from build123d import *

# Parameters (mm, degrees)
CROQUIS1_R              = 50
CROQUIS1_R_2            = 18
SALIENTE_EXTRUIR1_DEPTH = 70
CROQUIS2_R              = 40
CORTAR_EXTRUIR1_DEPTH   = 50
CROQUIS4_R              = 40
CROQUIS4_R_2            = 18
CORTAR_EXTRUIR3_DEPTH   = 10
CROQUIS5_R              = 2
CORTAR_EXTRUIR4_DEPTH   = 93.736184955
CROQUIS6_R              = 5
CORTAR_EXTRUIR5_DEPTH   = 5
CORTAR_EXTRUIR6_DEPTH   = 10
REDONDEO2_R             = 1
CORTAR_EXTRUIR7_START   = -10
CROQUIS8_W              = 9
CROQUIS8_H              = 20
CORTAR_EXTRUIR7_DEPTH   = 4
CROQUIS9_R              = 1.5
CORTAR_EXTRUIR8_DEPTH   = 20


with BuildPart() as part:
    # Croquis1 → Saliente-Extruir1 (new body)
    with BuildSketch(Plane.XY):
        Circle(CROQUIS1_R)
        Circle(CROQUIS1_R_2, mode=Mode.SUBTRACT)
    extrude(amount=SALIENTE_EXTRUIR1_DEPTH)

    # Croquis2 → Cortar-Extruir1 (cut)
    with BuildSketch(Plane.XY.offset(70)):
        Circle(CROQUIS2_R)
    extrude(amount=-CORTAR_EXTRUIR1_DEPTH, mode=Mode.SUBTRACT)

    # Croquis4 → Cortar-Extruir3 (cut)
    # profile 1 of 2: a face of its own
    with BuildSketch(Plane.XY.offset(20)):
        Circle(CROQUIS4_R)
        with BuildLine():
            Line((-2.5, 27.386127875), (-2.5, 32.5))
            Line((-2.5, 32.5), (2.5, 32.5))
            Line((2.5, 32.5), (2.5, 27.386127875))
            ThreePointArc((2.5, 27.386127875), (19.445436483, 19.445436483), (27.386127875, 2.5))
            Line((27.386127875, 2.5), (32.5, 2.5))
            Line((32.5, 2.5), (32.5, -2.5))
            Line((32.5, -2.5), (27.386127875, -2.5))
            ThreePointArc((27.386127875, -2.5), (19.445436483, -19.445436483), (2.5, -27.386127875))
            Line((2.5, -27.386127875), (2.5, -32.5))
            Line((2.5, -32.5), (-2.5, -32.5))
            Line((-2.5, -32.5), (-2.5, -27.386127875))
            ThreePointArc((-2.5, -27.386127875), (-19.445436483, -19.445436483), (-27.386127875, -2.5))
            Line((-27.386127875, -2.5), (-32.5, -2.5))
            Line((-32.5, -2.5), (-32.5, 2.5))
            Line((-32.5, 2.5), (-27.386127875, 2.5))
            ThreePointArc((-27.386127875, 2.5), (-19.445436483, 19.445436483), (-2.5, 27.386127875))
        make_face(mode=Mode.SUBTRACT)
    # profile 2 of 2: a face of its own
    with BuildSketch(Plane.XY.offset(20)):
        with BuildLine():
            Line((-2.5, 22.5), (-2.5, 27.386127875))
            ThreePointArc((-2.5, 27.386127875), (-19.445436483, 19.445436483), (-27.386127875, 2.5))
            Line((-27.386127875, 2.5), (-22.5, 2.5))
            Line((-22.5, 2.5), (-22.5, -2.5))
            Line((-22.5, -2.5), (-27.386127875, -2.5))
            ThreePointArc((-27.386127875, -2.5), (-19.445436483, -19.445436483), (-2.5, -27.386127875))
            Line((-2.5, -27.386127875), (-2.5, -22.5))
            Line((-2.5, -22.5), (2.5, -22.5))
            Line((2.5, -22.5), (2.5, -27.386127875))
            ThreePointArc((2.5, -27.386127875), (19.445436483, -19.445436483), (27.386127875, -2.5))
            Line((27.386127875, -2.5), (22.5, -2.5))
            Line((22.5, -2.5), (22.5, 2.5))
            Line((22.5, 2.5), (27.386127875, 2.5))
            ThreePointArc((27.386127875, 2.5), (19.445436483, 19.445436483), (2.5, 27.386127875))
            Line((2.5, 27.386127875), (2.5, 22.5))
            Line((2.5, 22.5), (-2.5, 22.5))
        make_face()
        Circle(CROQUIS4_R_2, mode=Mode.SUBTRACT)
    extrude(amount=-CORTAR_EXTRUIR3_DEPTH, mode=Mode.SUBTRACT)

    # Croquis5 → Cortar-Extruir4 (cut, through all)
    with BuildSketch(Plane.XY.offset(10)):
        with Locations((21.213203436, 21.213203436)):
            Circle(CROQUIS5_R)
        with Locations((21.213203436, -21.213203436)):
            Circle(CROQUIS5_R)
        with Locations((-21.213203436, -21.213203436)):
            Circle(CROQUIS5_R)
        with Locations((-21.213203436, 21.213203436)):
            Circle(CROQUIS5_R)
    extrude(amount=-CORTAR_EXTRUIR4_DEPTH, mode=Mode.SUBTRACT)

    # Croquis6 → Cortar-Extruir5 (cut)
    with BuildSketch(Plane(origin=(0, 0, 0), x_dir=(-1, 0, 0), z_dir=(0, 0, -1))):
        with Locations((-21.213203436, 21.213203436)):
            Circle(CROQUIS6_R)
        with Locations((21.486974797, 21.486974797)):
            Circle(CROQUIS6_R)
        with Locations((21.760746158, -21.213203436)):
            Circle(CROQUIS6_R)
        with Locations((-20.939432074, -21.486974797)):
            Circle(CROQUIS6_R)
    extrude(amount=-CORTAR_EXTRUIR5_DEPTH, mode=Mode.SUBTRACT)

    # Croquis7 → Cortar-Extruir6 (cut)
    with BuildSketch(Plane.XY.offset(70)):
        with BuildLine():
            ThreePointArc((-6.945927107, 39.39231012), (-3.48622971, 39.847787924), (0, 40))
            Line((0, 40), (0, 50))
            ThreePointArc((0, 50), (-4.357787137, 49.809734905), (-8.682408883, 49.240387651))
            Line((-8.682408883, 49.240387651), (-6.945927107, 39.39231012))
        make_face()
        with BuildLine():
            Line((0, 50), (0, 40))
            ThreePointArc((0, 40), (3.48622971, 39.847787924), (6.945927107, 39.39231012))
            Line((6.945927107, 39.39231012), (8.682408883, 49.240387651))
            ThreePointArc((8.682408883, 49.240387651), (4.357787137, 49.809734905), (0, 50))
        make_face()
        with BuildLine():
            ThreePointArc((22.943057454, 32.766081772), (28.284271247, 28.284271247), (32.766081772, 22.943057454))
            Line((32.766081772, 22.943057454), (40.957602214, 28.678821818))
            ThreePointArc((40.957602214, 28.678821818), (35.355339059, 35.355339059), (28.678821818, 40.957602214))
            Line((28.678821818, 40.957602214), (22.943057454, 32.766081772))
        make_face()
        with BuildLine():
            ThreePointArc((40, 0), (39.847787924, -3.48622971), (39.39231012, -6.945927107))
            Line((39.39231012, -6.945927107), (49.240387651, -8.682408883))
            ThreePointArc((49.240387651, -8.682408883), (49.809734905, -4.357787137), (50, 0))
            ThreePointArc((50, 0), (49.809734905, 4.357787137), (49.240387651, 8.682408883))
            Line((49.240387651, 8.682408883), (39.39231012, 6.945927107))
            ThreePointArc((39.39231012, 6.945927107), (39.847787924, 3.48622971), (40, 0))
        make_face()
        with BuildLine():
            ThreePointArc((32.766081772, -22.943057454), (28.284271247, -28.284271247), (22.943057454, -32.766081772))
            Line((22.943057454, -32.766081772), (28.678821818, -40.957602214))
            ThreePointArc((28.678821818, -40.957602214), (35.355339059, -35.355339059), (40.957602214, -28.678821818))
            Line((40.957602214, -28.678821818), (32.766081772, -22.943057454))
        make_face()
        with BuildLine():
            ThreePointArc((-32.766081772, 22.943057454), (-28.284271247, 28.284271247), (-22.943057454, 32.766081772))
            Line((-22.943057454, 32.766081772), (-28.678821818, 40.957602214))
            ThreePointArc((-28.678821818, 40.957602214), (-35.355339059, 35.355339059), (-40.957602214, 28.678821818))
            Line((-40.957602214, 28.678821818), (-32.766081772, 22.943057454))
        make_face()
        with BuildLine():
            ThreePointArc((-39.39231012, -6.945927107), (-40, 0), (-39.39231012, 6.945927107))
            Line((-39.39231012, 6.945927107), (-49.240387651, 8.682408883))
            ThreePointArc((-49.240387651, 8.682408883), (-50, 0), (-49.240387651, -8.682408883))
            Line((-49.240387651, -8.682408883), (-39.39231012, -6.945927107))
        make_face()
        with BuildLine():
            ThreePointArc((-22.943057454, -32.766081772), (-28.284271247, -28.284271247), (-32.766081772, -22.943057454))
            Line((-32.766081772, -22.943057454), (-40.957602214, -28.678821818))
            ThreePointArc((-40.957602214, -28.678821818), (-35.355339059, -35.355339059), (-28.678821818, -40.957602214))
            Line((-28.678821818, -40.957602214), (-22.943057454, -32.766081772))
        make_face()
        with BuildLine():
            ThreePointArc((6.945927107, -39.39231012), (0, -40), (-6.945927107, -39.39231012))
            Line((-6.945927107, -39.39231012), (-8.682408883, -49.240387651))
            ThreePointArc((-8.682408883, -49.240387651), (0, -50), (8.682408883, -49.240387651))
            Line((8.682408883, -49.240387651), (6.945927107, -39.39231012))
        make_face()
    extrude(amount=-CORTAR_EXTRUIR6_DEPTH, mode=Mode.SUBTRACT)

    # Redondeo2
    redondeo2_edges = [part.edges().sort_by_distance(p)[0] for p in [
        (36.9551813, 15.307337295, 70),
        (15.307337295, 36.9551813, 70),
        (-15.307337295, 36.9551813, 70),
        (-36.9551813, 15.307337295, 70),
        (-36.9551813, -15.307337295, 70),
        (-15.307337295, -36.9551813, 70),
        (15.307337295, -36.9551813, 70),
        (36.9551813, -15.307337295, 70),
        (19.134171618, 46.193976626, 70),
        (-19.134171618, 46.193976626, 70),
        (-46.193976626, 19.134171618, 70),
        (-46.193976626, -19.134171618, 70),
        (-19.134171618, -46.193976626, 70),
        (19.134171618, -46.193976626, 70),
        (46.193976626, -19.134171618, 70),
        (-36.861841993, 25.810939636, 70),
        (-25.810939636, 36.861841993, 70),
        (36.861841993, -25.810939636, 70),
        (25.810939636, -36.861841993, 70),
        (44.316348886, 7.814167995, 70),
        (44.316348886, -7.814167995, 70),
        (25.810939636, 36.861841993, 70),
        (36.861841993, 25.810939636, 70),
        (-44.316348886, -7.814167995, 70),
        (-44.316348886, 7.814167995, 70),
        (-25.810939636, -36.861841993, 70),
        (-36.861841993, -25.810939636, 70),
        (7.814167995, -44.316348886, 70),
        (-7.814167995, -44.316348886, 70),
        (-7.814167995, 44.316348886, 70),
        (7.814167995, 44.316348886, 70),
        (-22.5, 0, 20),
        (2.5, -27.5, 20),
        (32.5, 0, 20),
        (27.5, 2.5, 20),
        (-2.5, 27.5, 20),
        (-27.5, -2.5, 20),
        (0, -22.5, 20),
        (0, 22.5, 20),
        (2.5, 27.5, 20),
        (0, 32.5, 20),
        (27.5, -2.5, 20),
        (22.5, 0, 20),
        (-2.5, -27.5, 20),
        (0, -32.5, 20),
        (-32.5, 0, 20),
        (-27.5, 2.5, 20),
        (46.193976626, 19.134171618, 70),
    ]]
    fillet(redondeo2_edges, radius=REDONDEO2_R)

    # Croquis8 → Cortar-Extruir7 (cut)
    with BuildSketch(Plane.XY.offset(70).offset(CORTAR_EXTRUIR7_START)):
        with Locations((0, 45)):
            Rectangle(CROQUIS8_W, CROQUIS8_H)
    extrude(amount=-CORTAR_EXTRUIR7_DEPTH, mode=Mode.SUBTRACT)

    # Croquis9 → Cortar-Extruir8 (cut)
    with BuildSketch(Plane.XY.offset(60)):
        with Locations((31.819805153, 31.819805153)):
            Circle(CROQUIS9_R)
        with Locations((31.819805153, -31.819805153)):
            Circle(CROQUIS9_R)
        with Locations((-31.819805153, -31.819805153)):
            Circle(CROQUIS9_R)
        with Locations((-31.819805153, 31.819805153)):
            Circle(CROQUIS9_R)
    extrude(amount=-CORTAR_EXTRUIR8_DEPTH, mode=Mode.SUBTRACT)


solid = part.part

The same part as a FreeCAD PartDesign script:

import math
import FreeCAD as App
import Part
import Sketcher
from FreeCAD import Vector
Q = App.Units.Quantity


def edges_at(feature, points):
    """Names of the edges that pass closest to the given points."""
    edges = feature.Shape.Edges
    near = lambda p: min(range(len(edges)), key=lambda i: edges[i].distToShape(Part.Vertex(*p))[0])
    return sorted({f"Edge{near(p) + 1}" for p in points})


def add_polygon(sketch, points):
    """Adds a closed chain of lines whose ends are joined by coincident constraints."""
    first, n = sketch.GeometryCount, len(points)
    for a, b in zip(points, points[1:] + points[:1]):
        sketch.addGeometry(Part.LineSegment(App.Vector(*a, 0), App.Vector(*b, 0)), False)
    for i in range(n):
        sketch.addConstraint(Sketcher.Constraint("Coincident", first + i, 2, first + (i + 1) % n, 1))

doc = App.newDocument("Part")
body = doc.addObject("PartDesign::Body", "Body")

# Sketch on XY plane
sketch1 = doc.addObject("Sketcher::SketchObject", "Sketch")
body.addObject(sketch1)
sketch1.AttachmentSupport = (doc.XY_Plane, [""])
sketch1.MapMode = "FlatFace"
sketch1.addGeometry([
    Part.Circle(Vector(0, 0, 0), Vector(0, 0, 1), 50),
    Part.Circle(Vector(0, 0, 0), Vector(0, 0, 1), 18),
], False)
sketch1.addConstraint([
    Sketcher.Constraint("Coincident", 0, 3, -1, 1),
    Sketcher.Constraint("Coincident", 1, 3, -1, 1),
    Sketcher.Constraint("Diameter", 0, Q("100 mm")),
    Sketcher.Constraint("Diameter", 1, Q("36 mm")),
])
pad1 = doc.addObject("PartDesign::Pad", "Pad")
body.addObject(pad1)
pad1.Profile = sketch1
pad1.Length = 70

# Sketch on XY plane
sketch2 = doc.addObject("Sketcher::SketchObject", "Sketch001")
body.addObject(sketch2)
sketch2.AttachmentSupport = (doc.XY_Plane, [""])
sketch2.MapMode = "FlatFace"
sketch2.AttachmentOffset = App.Placement(Vector(0, 0, 70), App.Rotation())
sketch2.addGeometry(Part.Circle(Vector(0, 0, 0), Vector(0, 0, 1), 40), False)
sketch2.addConstraint([
    Sketcher.Constraint("Coincident", 0, 3, -1, 1),
    Sketcher.Constraint("Diameter", 0, Q("80 mm")),
])
pocket1 = doc.addObject("PartDesign::Pocket", "Pocket")
body.addObject(pocket1)
pocket1.Profile = sketch2
pocket1.Length = 50

# Sketch on XY plane
sketch3 = doc.addObject("Sketcher::SketchObject", "Sketch002")
body.addObject(sketch3)
sketch3.AttachmentSupport = (doc.XY_Plane, [""])
sketch3.MapMode = "FlatFace"
sketch3.AttachmentOffset = App.Placement(Vector(0, 0, 20), App.Rotation())
sketch3.addGeometry(Part.Circle(Vector(0, 0, 0), Vector(0, 0, 1), 40), False)  # 0
add_polygon(sketch3, [(-32.5, 2.5), (-22.5, 2.5), (-22.5, -2.5), (-32.5, -2.5)])  # lines 1-4
add_polygon(sketch3, [(-2.5, -32.5), (-2.5, -22.5), (2.5, -22.5), (2.5, -32.5)])  # lines 5-8
add_polygon(sketch3, [(32.5, -2.5), (22.5, -2.5), (22.5, 2.5), (32.5, 2.5)])  # lines 9-12
add_polygon(sketch3, [(2.5, 32.5), (2.5, 22.5), (-2.5, 22.5), (-2.5, 32.5)])  # lines 13-16
sketch3.addGeometry(Part.Circle(Vector(0, 0, 0), Vector(0, 0, 1), 18), False)  # 17
sketch3.addConstraint([
    Sketcher.Constraint("Horizontal", 1),
    Sketcher.Constraint("Vertical", 2),
    Sketcher.Constraint("Horizontal", 3),
    Sketcher.Constraint("Vertical", 4),
    Sketcher.Constraint("Vertical", 5),
    Sketcher.Constraint("Horizontal", 6),
    Sketcher.Constraint("Vertical", 7),
    Sketcher.Constraint("Horizontal", 8),
    Sketcher.Constraint("Horizontal", 9),
    Sketcher.Constraint("Vertical", 10),
    Sketcher.Constraint("Horizontal", 11),
    Sketcher.Constraint("Vertical", 12),
    Sketcher.Constraint("Vertical", 13),
    Sketcher.Constraint("Horizontal", 14),
    Sketcher.Constraint("Vertical", 15),
    Sketcher.Constraint("Horizontal", 16),
    Sketcher.Constraint("Coincident", 0, 3, -1, 1),
    Sketcher.Constraint("Coincident", 17, 3, -1, 1),
    Sketcher.Constraint("Symmetric", 1, 2, 9, 2, -1, 1),
    Sketcher.Constraint("Symmetric", 3, 2, 11, 2, -1, 1),
    Sketcher.Constraint("Symmetric", 5, 2, 13, 2, -1, 1),
    Sketcher.Constraint("Symmetric", 7, 2, 15, 2, -1, 1),
    Sketcher.Constraint("Horizontal", 3, 2, 9, 2),
    Sketcher.Constraint("Vertical", 7, 2, 13, 2),
    Sketcher.Constraint("Equal", 16, 2),
    Sketcher.Constraint("Equal", 11, 5),
    Sketcher.Constraint("Diameter", 0, Q("80 mm")),
    Sketcher.Constraint("Diameter", 17, Q("36 mm")),
    Sketcher.Constraint("DistanceX", 1, 1, 1, 2, Q("10 mm")),
    Sketcher.Constraint("DistanceX", 6, 1, 6, 2, Q("5 mm")),
    Sketcher.Constraint("DistanceX", 2, 2, 5, 2, Q("20 mm")),
    Sketcher.Constraint("DistanceY", 5, 2, 2, 2, Q("20 mm")),
])
pocket2 = doc.addObject("PartDesign::Pocket", "Pocket001")
body.addObject(pocket2)
pocket2.Profile = sketch3
pocket2.Length = 10

# Sketch on XY plane
sketch4 = doc.addObject("Sketcher::SketchObject", "Sketch003")
body.addObject(sketch4)
sketch4.AttachmentSupport = (doc.XY_Plane, [""])
sketch4.MapMode = "FlatFace"
sketch4.AttachmentOffset = App.Placement(Vector(0, 0, 10), App.Rotation())
sketch4.addGeometry([
    Part.Circle(Vector(21.213203, 21.213203, 0), Vector(0, 0, 1), 2),
    Part.Circle(Vector(21.213203, -21.213203, 0), Vector(0, 0, 1), 2),
    Part.Circle(Vector(-21.213203, -21.213203, 0), Vector(0, 0, 1), 2),
    Part.Circle(Vector(-21.213203, 21.213203, 0), Vector(0, 0, 1), 2),
], False)
sketch4.addConstraint([
    Sketcher.Constraint("Equal", 0, 1),
    Sketcher.Constraint("Equal", 1, 2),
    Sketcher.Constraint("Equal", 2, 3),
    Sketcher.Constraint("Symmetric", 0, 3, 2, 3, -1, 1),
    Sketcher.Constraint("Symmetric", 1, 3, 3, 3, -1, 1),
    Sketcher.Constraint("Symmetric", 1, 3, 2, 3, -2),
    Sketcher.Constraint("Diameter", 0, Q("4 mm")),
    Sketcher.Constraint("DistanceX", -1, 1, 0, 3, Q("21.213203 mm")),
    Sketcher.Constraint("DistanceY", -1, 1, 0, 3, Q("21.213203 mm")),
])
pocket3 = doc.addObject("PartDesign::Pocket", "Pocket002")
body.addObject(pocket3)
pocket3.Profile = sketch4
pocket3.Type = "ThroughAll"

# Sketch on XY plane
sketch5 = doc.addObject("Sketcher::SketchObject", "Sketch004")
body.addObject(sketch5)
sketch5.AttachmentSupport = (doc.XY_Plane, [""])
sketch5.MapMode = "FlatFace"
sketch5.addGeometry([
    Part.Circle(Vector(21.213203, 21.213203, 0), Vector(0, 0, 1), 5),
    Part.Circle(Vector(-21.486975, 21.486975, 0), Vector(0, 0, 1), 5),
    Part.Circle(Vector(-21.760746, -21.213203, 0), Vector(0, 0, 1), 5),
    Part.Circle(Vector(20.939432, -21.486975, 0), Vector(0, 0, 1), 5),
], False)
sketch5.addConstraint([
    Sketcher.Constraint("Equal", 0, 1),
    Sketcher.Constraint("Equal", 1, 2),
    Sketcher.Constraint("Equal", 2, 3),
    Sketcher.Constraint("Diameter", 0, Q("10 mm")),
    Sketcher.Constraint("DistanceX", 1, 3, 0, 3, Q("42.700178 mm")),
    Sketcher.Constraint("DistanceY", 0, 3, 1, 3, Q("0.273771 mm")),
    Sketcher.Constraint("DistanceX", 2, 3, 1, 3, Q("0.273771 mm")),
    Sketcher.Constraint("DistanceY", 2, 3, 1, 3, Q("42.700178 mm")),
    Sketcher.Constraint("DistanceX", 2, 3, 3, 3, Q("42.700178 mm")),
    Sketcher.Constraint("DistanceY", 3, 3, 2, 3, Q("0.273771 mm")),
    Sketcher.Constraint("DistanceX", -1, 1, 0, 3, Q("21.213203 mm")),
    Sketcher.Constraint("DistanceY", -1, 1, 0, 3, Q("21.213203 mm")),
])
pocket4 = doc.addObject("PartDesign::Pocket", "Pocket003")
body.addObject(pocket4)
pocket4.Profile = sketch5
pocket4.Length = 5
pocket4.Reversed = True

# Sketch on XY plane
sketch6 = doc.addObject("Sketcher::SketchObject", "Sketch005")
body.addObject(sketch6)
sketch6.AttachmentSupport = (doc.XY_Plane, [""])
sketch6.MapMode = "FlatFace"
sketch6.AttachmentOffset = App.Placement(Vector(0, 0, 70), App.Rotation())
sketch6.addGeometry([
    Part.ArcOfCircle(Part.Circle(Vector(0, 0, 0), Vector(0, 0, 1), 40), math.radians(90), math.radians(100)),  # 0
    Part.ArcOfCircle(Part.Circle(Vector(0, 0, 0), Vector(0, 0, 1), 40), math.radians(80), math.radians(90)),  # 1
    Part.LineSegment(Vector(6.945927, 39.39231, 0), Vector(8.682409, 49.240388, 0)),  # 2
    Part.ArcOfCircle(Part.Circle(Vector(0, 0, 0), Vector(0, 0, 1), 50), math.radians(80), math.radians(90)),  # 3
    Part.ArcOfCircle(Part.Circle(Vector(0, 0, 0), Vector(0, 0, 1), 50), math.radians(90), math.radians(100)),  # 4
    Part.LineSegment(Vector(-8.682409, 49.240388, 0), Vector(-6.945927, 39.39231, 0)),  # 5
    Part.ArcOfCircle(Part.Circle(Vector(0, 0, 0), Vector(0, 0, 1), 40), math.radians(35), math.radians(55)),  # 6
    Part.LineSegment(Vector(32.766082, 22.943057, 0), Vector(40.957602, 28.678822, 0)),  # 7
    Part.ArcOfCircle(Part.Circle(Vector(0, 0, 0), Vector(0, 0, 1), 50), math.radians(35), math.radians(55)),  # 8
    Part.LineSegment(Vector(28.678822, 40.957602, 0), Vector(22.943057, 32.766082, 0)),  # 9
    Part.ArcOfCircle(Part.Circle(Vector(0, 0, 0), Vector(0, 0, 1), 40), math.radians(-10), math.radians(0)),  # 10
    Part.LineSegment(Vector(39.39231, -6.945927, 0), Vector(49.240388, -8.682409, 0)),  # 11
    Part.ArcOfCircle(Part.Circle(Vector(0, 0, 0), Vector(0, 0, 1), 50), math.radians(-10), math.radians(0)),  # 12
    Part.ArcOfCircle(Part.Circle(Vector(0, 0, 0), Vector(0, 0, 1), 50), math.radians(0), math.radians(10)),  # 13
    Part.LineSegment(Vector(49.240388, 8.682409, 0), Vector(39.39231, 6.945927, 0)),  # 14
    Part.ArcOfCircle(Part.Circle(Vector(0, 0, 0), Vector(0, 0, 1), 40), math.radians(0), math.radians(10)),  # 15
    Part.ArcOfCircle(Part.Circle(Vector(0, 0, 0), Vector(0, 0, 1), 40), math.radians(-55), math.radians(-35)),  # 16
    Part.LineSegment(Vector(22.943057, -32.766082, 0), Vector(28.678822, -40.957602, 0)),  # 17
    Part.ArcOfCircle(Part.Circle(Vector(0, 0, 0), Vector(0, 0, 1), 50), math.radians(-55), math.radians(-35)),  # 18
    Part.LineSegment(Vector(40.957602, -28.678822, 0), Vector(32.766082, -22.943057, 0)),  # 19
    Part.ArcOfCircle(Part.Circle(Vector(0, 0, 0), Vector(0, 0, 1), 40), math.radians(125), math.radians(145)),  # 20
    Part.LineSegment(Vector(-22.943057, 32.766082, 0), Vector(-28.678822, 40.957602, 0)),  # 21
    Part.ArcOfCircle(Part.Circle(Vector(0, 0, 0), Vector(0, 0, 1), 50), math.radians(125), math.radians(145)),  # 22
    Part.LineSegment(Vector(-40.957602, 28.678822, 0), Vector(-32.766082, 22.943057, 0)),  # 23
    Part.ArcOfCircle(Part.Circle(Vector(0, 0, 0), Vector(0, 0, 1), 40), math.radians(170), math.radians(190)),  # 24
    Part.LineSegment(Vector(-39.39231, 6.945927, 0), Vector(-49.240388, 8.682409, 0)),  # 25
    Part.ArcOfCircle(Part.Circle(Vector(0, 0, 0), Vector(0, 0, 1), 50), math.radians(170), math.radians(190)),  # 26
    Part.LineSegment(Vector(-49.240388, -8.682409, 0), Vector(-39.39231, -6.945927, 0)),  # 27
    Part.ArcOfCircle(Part.Circle(Vector(0, 0, 0), Vector(0, 0, 1), 40), math.radians(-145), math.radians(-125)),  # 28
    Part.LineSegment(Vector(-32.766082, -22.943057, 0), Vector(-40.957602, -28.678822, 0)),  # 29
    Part.ArcOfCircle(Part.Circle(Vector(0, 0, 0), Vector(0, 0, 1), 50), math.radians(-145), math.radians(-125)),  # 30
    Part.LineSegment(Vector(-28.678822, -40.957602, 0), Vector(-22.943057, -32.766082, 0)),  # 31
    Part.ArcOfCircle(Part.Circle(Vector(0, 0, 0), Vector(0, 0, 1), 40), math.radians(-100), math.radians(-80)),  # 32
    Part.LineSegment(Vector(-6.945927, -39.39231, 0), Vector(-8.682409, -49.240388, 0)),  # 33
    Part.ArcOfCircle(Part.Circle(Vector(0, 0, 0), Vector(0, 0, 1), 50), math.radians(-100), math.radians(-80)),  # 34
    Part.LineSegment(Vector(8.682409, -49.240388, 0), Vector(6.945927, -39.39231, 0)),  # 35
], False)
sketch6.addConstraint([
    Sketcher.Constraint("Tangent", 0, 1, 1, 2),
    Sketcher.Constraint("Coincident", 1, 1, 2, 1),
    Sketcher.Constraint("Coincident", 2, 2, 3, 1),
    Sketcher.Constraint("Tangent", 3, 2, 4, 1),
    Sketcher.Constraint("Coincident", 4, 2, 5, 1),
    Sketcher.Constraint("Coincident", 5, 2, 0, 2),
    Sketcher.Constraint("Coincident", 6, 1, 7, 1),
    Sketcher.Constraint("Coincident", 7, 2, 8, 1),
    Sketcher.Constraint("Coincident", 8, 2, 9, 1),
    Sketcher.Constraint("Coincident", 9, 2, 6, 2),
    Sketcher.Constraint("Coincident", 10, 1, 11, 1),
    Sketcher.Constraint("Coincident", 11, 2, 12, 1),
    Sketcher.Constraint("Tangent", 12, 2, 13, 1),
    Sketcher.Constraint("Coincident", 13, 2, 14, 1),
    Sketcher.Constraint("Coincident", 14, 2, 15, 2),
    Sketcher.Constraint("Tangent", 15, 1, 10, 2),
    Sketcher.Constraint("Coincident", 16, 1, 17, 1),
    Sketcher.Constraint("Coincident", 17, 2, 18, 1),
    Sketcher.Constraint("Coincident", 18, 2, 19, 1),
    Sketcher.Constraint("Coincident", 19, 2, 16, 2),
    Sketcher.Constraint("Coincident", 20, 1, 21, 1),
    Sketcher.Constraint("Coincident", 21, 2, 22, 1),
    Sketcher.Constraint("Coincident", 22, 2, 23, 1),
    Sketcher.Constraint("Coincident", 23, 2, 20, 2),
    Sketcher.Constraint("Coincident", 24, 1, 25, 1),
    Sketcher.Constraint("Coincident", 25, 2, 26, 1),
    Sketcher.Constraint("Coincident", 26, 2, 27, 1),
    Sketcher.Constraint("Coincident", 27, 2, 24, 2),
    Sketcher.Constraint("Coincident", 28, 1, 29, 1),
    Sketcher.Constraint("Coincident", 29, 2, 30, 1),
    Sketcher.Constraint("Coincident", 30, 2, 31, 1),
    Sketcher.Constraint("Coincident", 31, 2, 28, 2),
    Sketcher.Constraint("Coincident", 32, 1, 33, 1),
    Sketcher.Constraint("Coincident", 33, 2, 34, 1),
    Sketcher.Constraint("Coincident", 34, 2, 35, 1),
    Sketcher.Constraint("Coincident", 35, 2, 32, 2),
    Sketcher.Constraint("Coincident", 0, 3, -1, 1),
    Sketcher.Constraint("Coincident", 3, 3, -1, 1),
    Sketcher.Constraint("Coincident", 6, 3, -1, 1),
    Sketcher.Constraint("Coincident", 8, 3, -1, 1),
    Sketcher.Constraint("Coincident", 10, 3, -1, 1),
    Sketcher.Constraint("Coincident", 12, 3, -1, 1),
    Sketcher.Constraint("Coincident", 16, 3, -1, 1),
    Sketcher.Constraint("Coincident", 18, 3, -1, 1),
    Sketcher.Constraint("Coincident", 20, 3, -1, 1),
    Sketcher.Constraint("Coincident", 22, 3, -1, 1),
    Sketcher.Constraint("Coincident", 24, 3, -1, 1),
    Sketcher.Constraint("Coincident", 26, 3, -1, 1),
    Sketcher.Constraint("Coincident", 28, 3, -1, 1),
    Sketcher.Constraint("Coincident", 30, 3, -1, 1),
    Sketcher.Constraint("Coincident", 32, 3, -1, 1),
    Sketcher.Constraint("Coincident", 34, 3, -1, 1),
    Sketcher.Constraint("Equal", 0, 1),
    Sketcher.Constraint("Equal", 3, 4),
    Sketcher.Constraint("Equal", 1, 6),
    Sketcher.Constraint("Equal", 4, 8),
    Sketcher.Constraint("Equal", 6, 10),
    Sketcher.Constraint("Equal", 8, 12),
    Sketcher.Constraint("Equal", 12, 13),
    Sketcher.Constraint("Equal", 10, 15),
    Sketcher.Constraint("Equal", 15, 16),
    Sketcher.Constraint("Equal", 13, 18),
    Sketcher.Constraint("Equal", 16, 20),
    Sketcher.Constraint("Equal", 18, 22),
    Sketcher.Constraint("Equal", 20, 24),
    Sketcher.Constraint("Equal", 22, 26),
    Sketcher.Constraint("Equal", 24, 28),
    Sketcher.Constraint("Equal", 26, 30),
    Sketcher.Constraint("Equal", 28, 32),
    Sketcher.Constraint("Equal", 30, 34),
    Sketcher.Constraint("PointOnObject", 0, 1, -2),
    Sketcher.Constraint("PointOnObject", 3, 2, -2),
    Sketcher.Constraint("PointOnObject", 12, 2, -1),
    Sketcher.Constraint("PointOnObject", 15, 1, -1),
    Sketcher.Constraint("Perpendicular", 2, 11),
    Sketcher.Constraint("Perpendicular", 5, 14),
    Sketcher.Constraint("Perpendicular", 7, 17),
    Sketcher.Constraint("Perpendicular", 9, 19),
    Sketcher.Constraint("Parallel", 17, 21),
    Sketcher.Constraint("Parallel", 19, 23),
    Sketcher.Constraint("Parallel", 11, 25),
    Sketcher.Constraint("Parallel", 14, 27),
    Sketcher.Constraint("Perpendicular", 21, 29),
    Sketcher.Constraint("Perpendicular", 23, 31),
    Sketcher.Constraint("Perpendicular", 25, 33),
    Sketcher.Constraint("Perpendicular", 27, 35),
    Sketcher.Constraint("Horizontal", 2, 2, 4, 2),
    Sketcher.Constraint("Horizontal", 1, 1, 5, 2),
    Sketcher.Constraint("Horizontal", 9, 2, 20, 1),
    Sketcher.Constraint("Horizontal", 8, 2, 21, 2),
    Sketcher.Constraint("Horizontal", 7, 2, 22, 2),
    Sketcher.Constraint("Horizontal", 14, 2, 24, 1),
    Sketcher.Constraint("Horizontal", 11, 2, 26, 2),
    Sketcher.Constraint("Horizontal", 19, 2, 28, 1),
    Sketcher.Constraint("Horizontal", 17, 2, 30, 2),
    Sketcher.Constraint("Horizontal", 33, 2, 34, 2),
    Sketcher.Constraint("Vertical", 11, 2, 13, 2),
    Sketcher.Constraint("Vertical", 9, 2, 16, 1),
    Sketcher.Constraint("Vertical", 7, 2, 18, 2),
    Sketcher.Constraint("Vertical", 5, 2, 32, 1),
    Sketcher.Constraint("Radius", 0, Q("40 mm")),
    Sketcher.Constraint("Radius", 3, Q("50 mm")),
    Sketcher.Constraint("Angle", 2, Q("80 deg")),
    Sketcher.Constraint("Angle", 7, Q("35 deg")),
    Sketcher.Constraint("DistanceY", -1, 1, 1, 1, Q("39.39231 mm")),
    Sketcher.Constraint("DistanceX", -1, 1, 6, 1, Q("32.766082 mm")),
    Sketcher.Constraint("DistanceX", -1, 1, 8, 2, Q("28.678822 mm")),
    Sketcher.Constraint("DistanceX", -1, 1, 10, 1, Q("39.39231 mm")),
])
pocket5 = doc.addObject("PartDesign::Pocket", "Pocket004")
body.addObject(pocket5)
pocket5.Profile = sketch6
pocket5.Length = 10
doc.recompute()

fillet = doc.addObject("PartDesign::Fillet", "Fillet")
body.addObject(fillet)
fillet.Base = (pocket5, edges_at(pocket5, [
    (36.955, 15.307, 70),
    (15.307, 36.955, 70),
    (-15.307, 36.955, 70),
    (-36.955, 15.307, 70),
    (-36.955, -15.307, 70),
    (-15.307, -36.955, 70),
    (15.307, -36.955, 70),
    (36.955, -15.307, 70),
    (19.134, 46.194, 70),
    (-19.134, 46.194, 70),
    (-46.194, 19.134, 70),
    (-46.194, -19.134, 70),
    (-19.134, -46.194, 70),
    (19.134, -46.194, 70),
    (46.194, -19.134, 70),
    (-36.862, 25.811, 70),
    (-25.811, 36.862, 70),
    (36.862, -25.811, 70),
    (25.811, -36.862, 70),
    (44.316, 7.814, 70),
    (44.316, -7.814, 70),
    (25.811, 36.862, 70),
    (36.862, 25.811, 70),
    (-44.316, -7.814, 70),
    (-44.316, 7.814, 70),
    (-25.811, -36.862, 70),
    (-36.862, -25.811, 70),
    (7.814, -44.316, 70),
    (-7.814, -44.316, 70),
    (-7.814, 44.316, 70),
    (7.814, 44.316, 70),
    (-22.5, 0, 20),
    (2.5, -27.5, 20),
    (32.5, 0, 20),
    (27.5, 2.5, 20),
    (-2.5, 27.5, 20),
    (-27.5, -2.5, 20),
    (0, -22.5, 20),
    (0, 22.5, 20),
    (2.5, 27.5, 20),
    (0, 32.5, 20),
    (27.5, -2.5, 20),
    (22.5, 0, 20),
    (-2.5, -27.5, 20),
    (0, -32.5, 20),
    (-32.5, 0, 20),
    (-27.5, 2.5, 20),
    (46.194, 19.134, 70),
]))
fillet.Radius = 1

# Sketch on XY plane
sketch7 = doc.addObject("Sketcher::SketchObject", "Sketch006")
body.addObject(sketch7)
sketch7.AttachmentSupport = (doc.XY_Plane, [""])
sketch7.MapMode = "FlatFace"
sketch7.AttachmentOffset = App.Placement(Vector(0, 0, 60), App.Rotation())
add_polygon(sketch7, [(-4.5, 55), (-4.5, 35), (4.5, 35), (4.5, 55)])  # lines 0-3
sketch7.addConstraint([
    Sketcher.Constraint("Vertical", 0),
    Sketcher.Constraint("Horizontal", 1),
    Sketcher.Constraint("Vertical", 2),
    Sketcher.Constraint("Horizontal", 3),
    Sketcher.Constraint("DistanceX", 1, 1, 1, 2, Q("9 mm")),
    Sketcher.Constraint("DistanceY", 0, 2, 0, 1, Q("20 mm")),
    Sketcher.Constraint("DistanceY", -1, 1, 0, 2, Q("35 mm")),
    Sketcher.Constraint("DistanceX", 0, 2, -1, 1, Q("4.5 mm")),
])
pocket6 = doc.addObject("PartDesign::Pocket", "Pocket005")
body.addObject(pocket6)
pocket6.Profile = sketch7
pocket6.Length = 4

# Sketch on XY plane
sketch8 = doc.addObject("Sketcher::SketchObject", "Sketch007")
body.addObject(sketch8)
sketch8.AttachmentSupport = (doc.XY_Plane, [""])
sketch8.MapMode = "FlatFace"
sketch8.AttachmentOffset = App.Placement(Vector(0, 0, 60), App.Rotation())
sketch8.addGeometry([
    Part.Circle(Vector(31.819805, 31.819805, 0), Vector(0, 0, 1), 1.5),
    Part.Circle(Vector(31.819805, -31.819805, 0), Vector(0, 0, 1), 1.5),
    Part.Circle(Vector(-31.819805, -31.819805, 0), Vector(0, 0, 1), 1.5),
    Part.Circle(Vector(-31.819805, 31.819805, 0), Vector(0, 0, 1), 1.5),
], False)
sketch8.addConstraint([
    Sketcher.Constraint("Equal", 0, 1),
    Sketcher.Constraint("Equal", 1, 2),
    Sketcher.Constraint("Equal", 2, 3),
    Sketcher.Constraint("Symmetric", 0, 3, 2, 3, -1, 1),
    Sketcher.Constraint("Symmetric", 1, 3, 3, 3, -1, 1),
    Sketcher.Constraint("Symmetric", 1, 3, 2, 3, -2),
    Sketcher.Constraint("Diameter", 0, Q("3 mm")),
    Sketcher.Constraint("DistanceY", 1, 3, 0, 3, Q("63.63961 mm")),
    Sketcher.Constraint("DistanceX", 2, 3, 1, 3, Q("63.63961 mm")),
])
pocket7 = doc.addObject("PartDesign::Pocket", "Pocket006")
body.addObject(pocket7)
pocket7.Profile = sketch8
pocket7.Length = 20

doc.recompute()
